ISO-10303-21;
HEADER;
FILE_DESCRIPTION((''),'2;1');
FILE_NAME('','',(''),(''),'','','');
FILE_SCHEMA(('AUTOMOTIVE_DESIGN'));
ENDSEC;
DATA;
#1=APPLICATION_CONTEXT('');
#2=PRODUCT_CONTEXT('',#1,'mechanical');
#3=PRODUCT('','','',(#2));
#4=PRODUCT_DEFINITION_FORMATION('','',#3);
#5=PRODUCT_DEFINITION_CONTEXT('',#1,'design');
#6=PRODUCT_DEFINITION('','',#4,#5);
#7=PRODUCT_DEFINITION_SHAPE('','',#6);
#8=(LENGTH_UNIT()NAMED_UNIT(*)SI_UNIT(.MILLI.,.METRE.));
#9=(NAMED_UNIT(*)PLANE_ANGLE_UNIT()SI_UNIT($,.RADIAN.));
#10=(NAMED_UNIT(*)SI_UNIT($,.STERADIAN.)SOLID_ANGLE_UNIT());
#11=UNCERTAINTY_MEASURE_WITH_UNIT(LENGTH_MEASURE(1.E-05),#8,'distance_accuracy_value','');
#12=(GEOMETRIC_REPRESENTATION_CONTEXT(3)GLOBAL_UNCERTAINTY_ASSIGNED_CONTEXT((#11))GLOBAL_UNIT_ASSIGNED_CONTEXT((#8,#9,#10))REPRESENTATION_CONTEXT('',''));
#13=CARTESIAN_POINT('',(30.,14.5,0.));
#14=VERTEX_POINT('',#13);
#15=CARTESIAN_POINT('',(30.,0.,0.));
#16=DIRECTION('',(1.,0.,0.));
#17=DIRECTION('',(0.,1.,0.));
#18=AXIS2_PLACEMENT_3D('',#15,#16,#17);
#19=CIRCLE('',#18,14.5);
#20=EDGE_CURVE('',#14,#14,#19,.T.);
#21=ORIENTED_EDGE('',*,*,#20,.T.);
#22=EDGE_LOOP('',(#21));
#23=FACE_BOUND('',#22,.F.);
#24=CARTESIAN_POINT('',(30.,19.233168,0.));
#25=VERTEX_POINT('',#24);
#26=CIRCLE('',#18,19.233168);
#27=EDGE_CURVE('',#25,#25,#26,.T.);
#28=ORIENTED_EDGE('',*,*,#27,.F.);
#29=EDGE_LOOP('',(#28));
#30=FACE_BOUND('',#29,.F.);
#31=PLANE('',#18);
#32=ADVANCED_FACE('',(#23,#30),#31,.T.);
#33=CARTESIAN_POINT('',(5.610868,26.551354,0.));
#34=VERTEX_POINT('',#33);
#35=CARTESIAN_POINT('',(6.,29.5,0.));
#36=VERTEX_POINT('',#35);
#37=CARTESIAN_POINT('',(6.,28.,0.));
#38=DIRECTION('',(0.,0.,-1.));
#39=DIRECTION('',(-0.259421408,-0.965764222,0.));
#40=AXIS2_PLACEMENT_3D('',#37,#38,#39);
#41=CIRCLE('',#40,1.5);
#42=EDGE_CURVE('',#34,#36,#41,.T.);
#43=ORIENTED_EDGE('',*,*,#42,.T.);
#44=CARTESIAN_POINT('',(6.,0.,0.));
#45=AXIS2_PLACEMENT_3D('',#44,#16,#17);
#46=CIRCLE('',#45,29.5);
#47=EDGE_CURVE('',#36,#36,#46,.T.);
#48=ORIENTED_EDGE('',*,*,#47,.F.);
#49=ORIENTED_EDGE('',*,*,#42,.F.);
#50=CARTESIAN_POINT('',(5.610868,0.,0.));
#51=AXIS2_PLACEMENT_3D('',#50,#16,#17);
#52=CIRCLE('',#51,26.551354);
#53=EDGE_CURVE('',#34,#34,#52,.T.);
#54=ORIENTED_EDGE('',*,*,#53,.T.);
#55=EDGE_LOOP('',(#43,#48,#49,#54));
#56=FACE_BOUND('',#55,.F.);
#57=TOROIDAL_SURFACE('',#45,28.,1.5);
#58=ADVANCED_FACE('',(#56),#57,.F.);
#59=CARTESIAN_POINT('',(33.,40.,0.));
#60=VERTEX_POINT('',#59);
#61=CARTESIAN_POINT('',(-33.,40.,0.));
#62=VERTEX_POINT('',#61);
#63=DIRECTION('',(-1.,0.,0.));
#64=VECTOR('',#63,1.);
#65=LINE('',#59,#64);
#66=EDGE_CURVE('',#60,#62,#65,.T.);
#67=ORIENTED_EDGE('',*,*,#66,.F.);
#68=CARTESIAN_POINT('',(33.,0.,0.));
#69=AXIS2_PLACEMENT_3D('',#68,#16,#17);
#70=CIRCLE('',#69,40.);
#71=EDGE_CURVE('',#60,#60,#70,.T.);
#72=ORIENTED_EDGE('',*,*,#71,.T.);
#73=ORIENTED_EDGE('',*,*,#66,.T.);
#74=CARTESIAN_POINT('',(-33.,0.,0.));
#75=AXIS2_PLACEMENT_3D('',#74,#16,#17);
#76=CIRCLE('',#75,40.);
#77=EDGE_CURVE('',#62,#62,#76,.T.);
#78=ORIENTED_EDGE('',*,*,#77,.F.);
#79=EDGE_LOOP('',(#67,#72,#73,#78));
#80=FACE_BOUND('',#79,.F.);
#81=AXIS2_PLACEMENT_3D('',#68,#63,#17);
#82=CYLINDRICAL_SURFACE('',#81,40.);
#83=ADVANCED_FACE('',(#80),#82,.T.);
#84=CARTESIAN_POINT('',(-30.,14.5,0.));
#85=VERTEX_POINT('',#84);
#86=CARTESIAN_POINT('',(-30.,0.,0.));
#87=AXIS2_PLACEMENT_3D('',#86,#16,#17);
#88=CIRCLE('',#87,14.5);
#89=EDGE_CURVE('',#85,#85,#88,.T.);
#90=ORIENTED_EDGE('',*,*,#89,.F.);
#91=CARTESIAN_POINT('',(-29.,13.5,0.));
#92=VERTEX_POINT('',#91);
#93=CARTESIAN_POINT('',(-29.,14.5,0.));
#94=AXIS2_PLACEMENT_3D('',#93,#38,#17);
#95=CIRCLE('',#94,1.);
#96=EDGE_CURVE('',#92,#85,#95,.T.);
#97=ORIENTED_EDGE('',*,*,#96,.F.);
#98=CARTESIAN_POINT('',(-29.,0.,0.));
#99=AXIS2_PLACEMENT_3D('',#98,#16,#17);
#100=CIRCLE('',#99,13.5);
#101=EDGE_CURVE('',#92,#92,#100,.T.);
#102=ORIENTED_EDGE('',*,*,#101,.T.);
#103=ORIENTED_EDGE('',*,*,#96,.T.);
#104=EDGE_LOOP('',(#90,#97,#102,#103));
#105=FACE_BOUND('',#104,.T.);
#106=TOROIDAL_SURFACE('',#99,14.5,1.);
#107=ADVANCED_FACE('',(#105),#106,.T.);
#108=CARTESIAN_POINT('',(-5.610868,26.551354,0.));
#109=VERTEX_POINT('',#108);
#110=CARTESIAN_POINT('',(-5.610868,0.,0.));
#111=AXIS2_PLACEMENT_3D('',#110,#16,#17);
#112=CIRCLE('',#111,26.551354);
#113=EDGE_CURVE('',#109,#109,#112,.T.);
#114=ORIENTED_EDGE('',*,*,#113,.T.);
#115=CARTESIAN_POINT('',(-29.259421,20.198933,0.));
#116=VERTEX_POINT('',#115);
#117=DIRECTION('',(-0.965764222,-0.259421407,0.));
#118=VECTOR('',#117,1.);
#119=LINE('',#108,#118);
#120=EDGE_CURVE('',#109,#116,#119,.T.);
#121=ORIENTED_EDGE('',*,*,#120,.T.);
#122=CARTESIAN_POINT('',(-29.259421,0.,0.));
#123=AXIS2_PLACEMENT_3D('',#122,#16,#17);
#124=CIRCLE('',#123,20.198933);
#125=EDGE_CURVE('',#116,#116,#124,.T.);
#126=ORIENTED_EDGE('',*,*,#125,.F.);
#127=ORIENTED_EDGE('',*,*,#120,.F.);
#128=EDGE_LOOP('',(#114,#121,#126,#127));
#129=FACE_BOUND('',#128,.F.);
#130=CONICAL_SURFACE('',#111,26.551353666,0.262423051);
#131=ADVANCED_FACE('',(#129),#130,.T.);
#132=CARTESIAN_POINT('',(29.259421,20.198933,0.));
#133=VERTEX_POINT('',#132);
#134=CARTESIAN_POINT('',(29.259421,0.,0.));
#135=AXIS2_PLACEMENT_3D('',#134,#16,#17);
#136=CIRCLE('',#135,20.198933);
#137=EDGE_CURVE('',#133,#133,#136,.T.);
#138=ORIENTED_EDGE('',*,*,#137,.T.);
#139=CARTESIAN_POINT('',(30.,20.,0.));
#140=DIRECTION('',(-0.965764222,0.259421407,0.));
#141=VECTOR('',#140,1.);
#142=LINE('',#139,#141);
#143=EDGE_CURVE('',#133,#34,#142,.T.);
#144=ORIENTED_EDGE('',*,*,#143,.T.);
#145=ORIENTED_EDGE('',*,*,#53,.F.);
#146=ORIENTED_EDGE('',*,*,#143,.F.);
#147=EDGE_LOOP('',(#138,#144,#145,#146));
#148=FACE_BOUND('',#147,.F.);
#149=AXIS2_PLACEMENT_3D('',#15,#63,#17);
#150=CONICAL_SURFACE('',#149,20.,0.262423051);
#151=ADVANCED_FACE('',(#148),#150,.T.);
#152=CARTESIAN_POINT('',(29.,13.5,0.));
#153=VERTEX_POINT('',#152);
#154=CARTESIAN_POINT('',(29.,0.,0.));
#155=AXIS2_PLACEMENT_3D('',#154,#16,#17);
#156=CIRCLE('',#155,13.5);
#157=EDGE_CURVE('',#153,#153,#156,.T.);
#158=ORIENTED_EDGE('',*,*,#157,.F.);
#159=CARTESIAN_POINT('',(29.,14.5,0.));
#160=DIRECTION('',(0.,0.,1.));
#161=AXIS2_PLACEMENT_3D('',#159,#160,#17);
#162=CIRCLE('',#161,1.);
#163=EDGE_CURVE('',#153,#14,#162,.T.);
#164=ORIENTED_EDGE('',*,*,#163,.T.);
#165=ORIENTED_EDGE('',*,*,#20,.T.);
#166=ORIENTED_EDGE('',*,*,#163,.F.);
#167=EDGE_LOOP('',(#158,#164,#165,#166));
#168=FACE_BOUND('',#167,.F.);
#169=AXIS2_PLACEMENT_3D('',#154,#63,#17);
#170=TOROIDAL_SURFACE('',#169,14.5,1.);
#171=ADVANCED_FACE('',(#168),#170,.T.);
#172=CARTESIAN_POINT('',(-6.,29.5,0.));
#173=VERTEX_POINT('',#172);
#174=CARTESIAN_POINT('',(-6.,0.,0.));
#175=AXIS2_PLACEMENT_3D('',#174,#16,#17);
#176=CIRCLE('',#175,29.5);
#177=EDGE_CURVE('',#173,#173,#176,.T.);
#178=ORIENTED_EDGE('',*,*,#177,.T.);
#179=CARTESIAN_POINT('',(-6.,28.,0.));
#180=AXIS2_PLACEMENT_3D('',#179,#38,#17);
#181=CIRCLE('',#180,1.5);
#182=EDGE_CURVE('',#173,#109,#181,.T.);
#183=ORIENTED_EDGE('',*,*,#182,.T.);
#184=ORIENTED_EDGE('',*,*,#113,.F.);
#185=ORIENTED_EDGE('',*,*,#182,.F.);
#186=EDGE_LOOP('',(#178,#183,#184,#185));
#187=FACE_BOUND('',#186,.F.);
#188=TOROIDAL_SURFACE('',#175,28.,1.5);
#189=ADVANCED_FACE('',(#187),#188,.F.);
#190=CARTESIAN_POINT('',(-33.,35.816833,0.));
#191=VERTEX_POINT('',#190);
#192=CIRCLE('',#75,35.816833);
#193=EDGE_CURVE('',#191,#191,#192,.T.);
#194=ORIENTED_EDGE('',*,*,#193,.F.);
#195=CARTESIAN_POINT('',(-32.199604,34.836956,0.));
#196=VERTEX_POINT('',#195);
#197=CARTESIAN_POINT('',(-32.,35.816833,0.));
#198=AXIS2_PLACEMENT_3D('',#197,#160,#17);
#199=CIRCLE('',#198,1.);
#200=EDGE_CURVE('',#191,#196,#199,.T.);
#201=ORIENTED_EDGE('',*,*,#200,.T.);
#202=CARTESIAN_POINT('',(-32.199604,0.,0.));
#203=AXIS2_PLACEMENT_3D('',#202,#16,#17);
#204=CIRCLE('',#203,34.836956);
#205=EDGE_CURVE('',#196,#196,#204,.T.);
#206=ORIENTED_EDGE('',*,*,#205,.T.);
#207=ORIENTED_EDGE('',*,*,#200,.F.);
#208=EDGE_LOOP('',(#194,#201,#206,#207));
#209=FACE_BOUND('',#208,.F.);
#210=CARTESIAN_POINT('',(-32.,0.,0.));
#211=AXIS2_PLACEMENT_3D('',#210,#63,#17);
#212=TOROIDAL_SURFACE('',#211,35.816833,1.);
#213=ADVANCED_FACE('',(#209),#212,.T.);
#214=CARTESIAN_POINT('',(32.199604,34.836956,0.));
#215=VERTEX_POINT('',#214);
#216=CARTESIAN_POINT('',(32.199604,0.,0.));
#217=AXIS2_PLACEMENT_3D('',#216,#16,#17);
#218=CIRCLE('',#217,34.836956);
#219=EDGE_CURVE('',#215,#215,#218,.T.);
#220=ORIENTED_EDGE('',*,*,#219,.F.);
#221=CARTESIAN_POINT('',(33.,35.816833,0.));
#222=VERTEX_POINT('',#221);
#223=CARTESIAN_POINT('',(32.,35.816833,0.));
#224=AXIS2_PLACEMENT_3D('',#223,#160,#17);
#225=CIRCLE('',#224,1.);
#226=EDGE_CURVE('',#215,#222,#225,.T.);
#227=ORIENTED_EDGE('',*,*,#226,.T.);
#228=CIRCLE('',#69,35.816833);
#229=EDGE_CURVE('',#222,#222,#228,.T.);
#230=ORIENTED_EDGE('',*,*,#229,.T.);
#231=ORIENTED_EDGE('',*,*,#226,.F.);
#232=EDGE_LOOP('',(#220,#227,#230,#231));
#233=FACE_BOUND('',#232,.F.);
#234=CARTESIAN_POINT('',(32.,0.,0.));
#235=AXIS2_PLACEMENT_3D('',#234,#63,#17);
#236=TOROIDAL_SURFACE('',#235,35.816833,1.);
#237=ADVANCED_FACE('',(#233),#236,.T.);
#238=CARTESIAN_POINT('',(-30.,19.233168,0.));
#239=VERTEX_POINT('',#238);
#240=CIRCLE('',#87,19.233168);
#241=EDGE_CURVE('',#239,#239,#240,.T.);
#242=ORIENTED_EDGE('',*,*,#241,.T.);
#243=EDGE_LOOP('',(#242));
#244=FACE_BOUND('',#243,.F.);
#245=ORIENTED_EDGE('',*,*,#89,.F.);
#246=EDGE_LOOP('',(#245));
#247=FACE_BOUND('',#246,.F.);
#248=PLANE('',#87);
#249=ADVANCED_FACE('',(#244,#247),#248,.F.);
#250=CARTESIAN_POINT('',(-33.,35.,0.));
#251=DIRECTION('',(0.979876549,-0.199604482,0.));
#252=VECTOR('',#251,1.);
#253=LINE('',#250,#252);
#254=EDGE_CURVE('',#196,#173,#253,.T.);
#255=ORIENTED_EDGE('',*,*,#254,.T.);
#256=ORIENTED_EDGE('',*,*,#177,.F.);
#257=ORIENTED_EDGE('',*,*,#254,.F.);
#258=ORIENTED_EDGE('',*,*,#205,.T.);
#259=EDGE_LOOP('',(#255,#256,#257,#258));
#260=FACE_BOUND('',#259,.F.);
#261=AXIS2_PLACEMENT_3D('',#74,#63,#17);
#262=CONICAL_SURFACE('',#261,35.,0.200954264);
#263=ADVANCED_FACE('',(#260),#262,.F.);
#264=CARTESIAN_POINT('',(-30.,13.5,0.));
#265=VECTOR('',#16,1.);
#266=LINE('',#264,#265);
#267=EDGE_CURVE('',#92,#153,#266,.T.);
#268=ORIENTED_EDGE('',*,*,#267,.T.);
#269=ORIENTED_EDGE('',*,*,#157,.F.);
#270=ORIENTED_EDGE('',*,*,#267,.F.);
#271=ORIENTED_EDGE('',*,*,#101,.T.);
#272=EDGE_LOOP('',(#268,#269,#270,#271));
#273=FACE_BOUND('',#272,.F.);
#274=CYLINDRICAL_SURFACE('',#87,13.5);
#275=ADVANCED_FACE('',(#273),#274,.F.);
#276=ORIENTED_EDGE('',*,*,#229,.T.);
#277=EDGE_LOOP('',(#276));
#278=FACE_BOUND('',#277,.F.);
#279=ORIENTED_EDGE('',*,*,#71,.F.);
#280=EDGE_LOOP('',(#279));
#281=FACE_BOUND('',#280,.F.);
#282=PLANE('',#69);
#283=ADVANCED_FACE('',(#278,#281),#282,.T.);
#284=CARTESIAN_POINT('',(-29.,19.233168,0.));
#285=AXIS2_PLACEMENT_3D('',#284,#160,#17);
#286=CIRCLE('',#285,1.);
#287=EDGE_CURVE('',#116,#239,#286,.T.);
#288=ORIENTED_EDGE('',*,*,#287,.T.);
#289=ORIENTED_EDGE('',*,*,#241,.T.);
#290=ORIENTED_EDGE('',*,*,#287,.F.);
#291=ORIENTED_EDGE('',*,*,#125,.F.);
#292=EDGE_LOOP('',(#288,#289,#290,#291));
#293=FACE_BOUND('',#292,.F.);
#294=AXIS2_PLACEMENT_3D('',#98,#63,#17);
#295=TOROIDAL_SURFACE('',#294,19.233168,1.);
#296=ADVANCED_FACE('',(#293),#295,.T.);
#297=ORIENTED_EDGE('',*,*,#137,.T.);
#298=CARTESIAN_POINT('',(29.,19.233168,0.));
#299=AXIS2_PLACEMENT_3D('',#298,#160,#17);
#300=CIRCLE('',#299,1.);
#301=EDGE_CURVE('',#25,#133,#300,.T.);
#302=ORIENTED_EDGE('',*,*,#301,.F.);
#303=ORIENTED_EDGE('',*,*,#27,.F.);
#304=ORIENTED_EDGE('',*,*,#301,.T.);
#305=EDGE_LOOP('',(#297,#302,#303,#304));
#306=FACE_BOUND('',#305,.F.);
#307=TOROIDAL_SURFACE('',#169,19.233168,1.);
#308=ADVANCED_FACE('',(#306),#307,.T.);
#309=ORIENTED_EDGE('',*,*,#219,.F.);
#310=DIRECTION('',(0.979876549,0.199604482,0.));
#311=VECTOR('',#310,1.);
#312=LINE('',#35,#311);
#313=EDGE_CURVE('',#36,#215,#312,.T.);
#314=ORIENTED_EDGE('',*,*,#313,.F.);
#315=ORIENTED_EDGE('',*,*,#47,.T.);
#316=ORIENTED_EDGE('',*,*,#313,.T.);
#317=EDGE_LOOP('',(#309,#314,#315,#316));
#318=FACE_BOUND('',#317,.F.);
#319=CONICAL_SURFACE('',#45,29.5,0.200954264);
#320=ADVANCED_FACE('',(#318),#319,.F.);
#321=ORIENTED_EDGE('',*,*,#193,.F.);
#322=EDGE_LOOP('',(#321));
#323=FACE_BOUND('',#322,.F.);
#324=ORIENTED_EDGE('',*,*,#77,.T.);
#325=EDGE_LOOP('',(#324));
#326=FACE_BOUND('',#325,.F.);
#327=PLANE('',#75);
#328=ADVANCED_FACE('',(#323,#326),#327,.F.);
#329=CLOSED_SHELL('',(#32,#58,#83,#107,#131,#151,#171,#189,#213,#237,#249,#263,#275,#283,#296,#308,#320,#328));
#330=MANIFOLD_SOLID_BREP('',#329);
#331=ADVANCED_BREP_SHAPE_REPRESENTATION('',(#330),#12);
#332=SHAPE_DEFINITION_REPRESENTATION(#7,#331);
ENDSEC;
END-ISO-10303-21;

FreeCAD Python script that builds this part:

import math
import FreeCAD as App
import Part
import Sketcher
from FreeCAD import Vector
Q = App.Units.Quantity


def edges_at(feature, points):
    """Names of the edges that pass closest to the given points."""
    edges = feature.Shape.Edges
    near = lambda p: min(range(len(edges)), key=lambda i: edges[i].distToShape(Part.Vertex(*p))[0])
    return sorted({f"Edge{near(p) + 1}" for p in points})

doc = App.newDocument("Part")
body = doc.addObject("PartDesign::Body", "Body")

sketch1 = body.newObject("Sketcher::SketchObject", "Sketch")
sketch1.AttachmentSupport = (doc.getObject("XY_Plane"), [""])
sketch1.MapMode = "FlatFace"
sketch1.addGeometry(Part.LineSegment(Vector(-30, 13.5, 0), Vector(30, 13.5, 0)), False)
sketch1.addGeometry(Part.LineSegment(Vector(30, 13.5, 0), Vector(30, 20, 0)), False)
sketch1.addGeometry(Part.LineSegment(Vector(30, 20, 0), Vector(5.610868, 26.551354, 0)), False)
sketch1.addGeometry(Part.ArcOfCircle(Part.Circle(Vector(6, 28, 0), Vector(0, 0, 1), 1.5), math.radians(90), math.radians(254.964267)), False)
sketch1.addGeometry(Part.LineSegment(Vector(6, 29.5, 0), Vector(33, 35, 0)), False)
sketch1.addGeometry(Part.LineSegment(Vector(33, 35, 0), Vector(33, 40, 0)), False)
sketch1.addGeometry(Part.LineSegment(Vector(33, 40, 0), Vector(-33, 40, 0)), False)
sketch1.addGeometry(Part.LineSegment(Vector(-33, 40, 0), Vector(-33, 35, 0)), False)
sketch1.addGeometry(Part.LineSegment(Vector(-33, 35, 0), Vector(-6, 29.5, 0)), False)
sketch1.addGeometry(Part.ArcOfCircle(Part.Circle(Vector(-6, 28, 0), Vector(0, 0, 1), 1.5), math.radians(-74.964267), math.radians(90)), False)
sketch1.addGeometry(Part.LineSegment(Vector(-5.610868, 26.551354, 0), Vector(-30, 20, 0)), False)
sketch1.addGeometry(Part.LineSegment(Vector(-30, 20, 0), Vector(-30, 13.5, 0)), False)
sketch1.addConstraint(Sketcher.Constraint("Coincident", 0, 2, 1, 1))
sketch1.addConstraint(Sketcher.Constraint("Coincident", 1, 2, 2, 1))
sketch1.addConstraint(Sketcher.Constraint("Tangent", 2, 2, 3, 2))
sketch1.addConstraint(Sketcher.Constraint("Coincident", 3, 1, 4, 1))
sketch1.addConstraint(Sketcher.Constraint("Coincident", 4, 2, 5, 1))
sketch1.addConstraint(Sketcher.Constraint("Coincident", 5, 2, 6, 1))
sketch1.addConstraint(Sketcher.Constraint("Coincident", 6, 2, 7, 1))
sketch1.addConstraint(Sketcher.Constraint("Coincident", 7, 2, 8, 1))
sketch1.addConstraint(Sketcher.Constraint("Coincident", 8, 2, 9, 2))
sketch1.addConstraint(Sketcher.Constraint("Tangent", 9, 1, 10, 1))
sketch1.addConstraint(Sketcher.Constraint("Coincident", 10, 2, 11, 1))
sketch1.addConstraint(Sketcher.Constraint("Coincident", 11, 2, 0, 1))
sketch1.addConstraint(Sketcher.Constraint("Horizontal", 0))
sketch1.addConstraint(Sketcher.Constraint("Vertical", 1))
sketch1.addConstraint(Sketcher.Constraint("Vertical", 5))
sketch1.addConstraint(Sketcher.Constraint("Horizontal", 6))
sketch1.addConstraint(Sketcher.Constraint("Vertical", 7))
sketch1.addConstraint(Sketcher.Constraint("Vertical", 11))
sketch1.addConstraint(Sketcher.Constraint("Equal", 3, 9))
sketch1.addConstraint(Sketcher.Constraint("Symmetric", 3, 3, 9, 3, -2))
sketch1.addConstraint(Sketcher.Constraint("Symmetric", 4, 2, 7, 2, -2))
sketch1.addConstraint(Sketcher.Constraint("Symmetric", 1, 2, 10, 2, -2))
sketch1.addConstraint(Sketcher.Constraint("Vertical", 9, 3, 8, 2))
sketch1.addConstraint(Sketcher.Constraint("Equal", 4, 8))
sketch1.addConstraint(Sketcher.Constraint("Radius", 3, Q("1.5 mm")))
sketch1.addConstraint(Sketcher.Constraint("DistanceX", 0, 1, 0, 2, Q("60 mm")))
sketch1.addConstraint(Sketcher.Constraint("DistanceX", 6, 2, 6, 1, Q("66 mm")))
sketch1.addConstraint(Sketcher.Constraint("DistanceY", 5, 1, 5, 2, Q("5 mm")))
sketch1.addConstraint(Sketcher.Constraint("DistanceY", 1, 1, 1, 2, Q("6.5 mm")))
sketch1.addConstraint(Sketcher.Constraint("DistanceX", -1, 1, 3, 3, Q("6 mm")))
sketch1.addConstraint(Sketcher.Constraint("DistanceY", -1, 1, 3, 3, Q("28 mm")))
sketch1.addConstraint(Sketcher.Constraint("DistanceY", -1, 1, 1, 2, Q("20 mm")))
sketch1.addConstraint(Sketcher.Constraint("DistanceY", -1, 1, 4, 2, Q("35 mm")))
revolution = body.newObject("PartDesign::Revolution", "Revolution")
revolution.Profile = sketch1
revolution.ReferenceAxis = (sketch1, ["H_Axis"])
revolution.Angle = 360
doc.recompute()

fillet = body.newObject("PartDesign::Fillet", "Fillet")
fillet.Base = (revolution, edges_at(revolution, [
    (-33, -35, 0),
    (33, -35, 0),
    (30, -20, 0),
    (30, -13.5, 0),
    (-30, -13.5, 0),
    (-30, -20, 0),
]))
fillet.Radius = 1

doc.recompute()
